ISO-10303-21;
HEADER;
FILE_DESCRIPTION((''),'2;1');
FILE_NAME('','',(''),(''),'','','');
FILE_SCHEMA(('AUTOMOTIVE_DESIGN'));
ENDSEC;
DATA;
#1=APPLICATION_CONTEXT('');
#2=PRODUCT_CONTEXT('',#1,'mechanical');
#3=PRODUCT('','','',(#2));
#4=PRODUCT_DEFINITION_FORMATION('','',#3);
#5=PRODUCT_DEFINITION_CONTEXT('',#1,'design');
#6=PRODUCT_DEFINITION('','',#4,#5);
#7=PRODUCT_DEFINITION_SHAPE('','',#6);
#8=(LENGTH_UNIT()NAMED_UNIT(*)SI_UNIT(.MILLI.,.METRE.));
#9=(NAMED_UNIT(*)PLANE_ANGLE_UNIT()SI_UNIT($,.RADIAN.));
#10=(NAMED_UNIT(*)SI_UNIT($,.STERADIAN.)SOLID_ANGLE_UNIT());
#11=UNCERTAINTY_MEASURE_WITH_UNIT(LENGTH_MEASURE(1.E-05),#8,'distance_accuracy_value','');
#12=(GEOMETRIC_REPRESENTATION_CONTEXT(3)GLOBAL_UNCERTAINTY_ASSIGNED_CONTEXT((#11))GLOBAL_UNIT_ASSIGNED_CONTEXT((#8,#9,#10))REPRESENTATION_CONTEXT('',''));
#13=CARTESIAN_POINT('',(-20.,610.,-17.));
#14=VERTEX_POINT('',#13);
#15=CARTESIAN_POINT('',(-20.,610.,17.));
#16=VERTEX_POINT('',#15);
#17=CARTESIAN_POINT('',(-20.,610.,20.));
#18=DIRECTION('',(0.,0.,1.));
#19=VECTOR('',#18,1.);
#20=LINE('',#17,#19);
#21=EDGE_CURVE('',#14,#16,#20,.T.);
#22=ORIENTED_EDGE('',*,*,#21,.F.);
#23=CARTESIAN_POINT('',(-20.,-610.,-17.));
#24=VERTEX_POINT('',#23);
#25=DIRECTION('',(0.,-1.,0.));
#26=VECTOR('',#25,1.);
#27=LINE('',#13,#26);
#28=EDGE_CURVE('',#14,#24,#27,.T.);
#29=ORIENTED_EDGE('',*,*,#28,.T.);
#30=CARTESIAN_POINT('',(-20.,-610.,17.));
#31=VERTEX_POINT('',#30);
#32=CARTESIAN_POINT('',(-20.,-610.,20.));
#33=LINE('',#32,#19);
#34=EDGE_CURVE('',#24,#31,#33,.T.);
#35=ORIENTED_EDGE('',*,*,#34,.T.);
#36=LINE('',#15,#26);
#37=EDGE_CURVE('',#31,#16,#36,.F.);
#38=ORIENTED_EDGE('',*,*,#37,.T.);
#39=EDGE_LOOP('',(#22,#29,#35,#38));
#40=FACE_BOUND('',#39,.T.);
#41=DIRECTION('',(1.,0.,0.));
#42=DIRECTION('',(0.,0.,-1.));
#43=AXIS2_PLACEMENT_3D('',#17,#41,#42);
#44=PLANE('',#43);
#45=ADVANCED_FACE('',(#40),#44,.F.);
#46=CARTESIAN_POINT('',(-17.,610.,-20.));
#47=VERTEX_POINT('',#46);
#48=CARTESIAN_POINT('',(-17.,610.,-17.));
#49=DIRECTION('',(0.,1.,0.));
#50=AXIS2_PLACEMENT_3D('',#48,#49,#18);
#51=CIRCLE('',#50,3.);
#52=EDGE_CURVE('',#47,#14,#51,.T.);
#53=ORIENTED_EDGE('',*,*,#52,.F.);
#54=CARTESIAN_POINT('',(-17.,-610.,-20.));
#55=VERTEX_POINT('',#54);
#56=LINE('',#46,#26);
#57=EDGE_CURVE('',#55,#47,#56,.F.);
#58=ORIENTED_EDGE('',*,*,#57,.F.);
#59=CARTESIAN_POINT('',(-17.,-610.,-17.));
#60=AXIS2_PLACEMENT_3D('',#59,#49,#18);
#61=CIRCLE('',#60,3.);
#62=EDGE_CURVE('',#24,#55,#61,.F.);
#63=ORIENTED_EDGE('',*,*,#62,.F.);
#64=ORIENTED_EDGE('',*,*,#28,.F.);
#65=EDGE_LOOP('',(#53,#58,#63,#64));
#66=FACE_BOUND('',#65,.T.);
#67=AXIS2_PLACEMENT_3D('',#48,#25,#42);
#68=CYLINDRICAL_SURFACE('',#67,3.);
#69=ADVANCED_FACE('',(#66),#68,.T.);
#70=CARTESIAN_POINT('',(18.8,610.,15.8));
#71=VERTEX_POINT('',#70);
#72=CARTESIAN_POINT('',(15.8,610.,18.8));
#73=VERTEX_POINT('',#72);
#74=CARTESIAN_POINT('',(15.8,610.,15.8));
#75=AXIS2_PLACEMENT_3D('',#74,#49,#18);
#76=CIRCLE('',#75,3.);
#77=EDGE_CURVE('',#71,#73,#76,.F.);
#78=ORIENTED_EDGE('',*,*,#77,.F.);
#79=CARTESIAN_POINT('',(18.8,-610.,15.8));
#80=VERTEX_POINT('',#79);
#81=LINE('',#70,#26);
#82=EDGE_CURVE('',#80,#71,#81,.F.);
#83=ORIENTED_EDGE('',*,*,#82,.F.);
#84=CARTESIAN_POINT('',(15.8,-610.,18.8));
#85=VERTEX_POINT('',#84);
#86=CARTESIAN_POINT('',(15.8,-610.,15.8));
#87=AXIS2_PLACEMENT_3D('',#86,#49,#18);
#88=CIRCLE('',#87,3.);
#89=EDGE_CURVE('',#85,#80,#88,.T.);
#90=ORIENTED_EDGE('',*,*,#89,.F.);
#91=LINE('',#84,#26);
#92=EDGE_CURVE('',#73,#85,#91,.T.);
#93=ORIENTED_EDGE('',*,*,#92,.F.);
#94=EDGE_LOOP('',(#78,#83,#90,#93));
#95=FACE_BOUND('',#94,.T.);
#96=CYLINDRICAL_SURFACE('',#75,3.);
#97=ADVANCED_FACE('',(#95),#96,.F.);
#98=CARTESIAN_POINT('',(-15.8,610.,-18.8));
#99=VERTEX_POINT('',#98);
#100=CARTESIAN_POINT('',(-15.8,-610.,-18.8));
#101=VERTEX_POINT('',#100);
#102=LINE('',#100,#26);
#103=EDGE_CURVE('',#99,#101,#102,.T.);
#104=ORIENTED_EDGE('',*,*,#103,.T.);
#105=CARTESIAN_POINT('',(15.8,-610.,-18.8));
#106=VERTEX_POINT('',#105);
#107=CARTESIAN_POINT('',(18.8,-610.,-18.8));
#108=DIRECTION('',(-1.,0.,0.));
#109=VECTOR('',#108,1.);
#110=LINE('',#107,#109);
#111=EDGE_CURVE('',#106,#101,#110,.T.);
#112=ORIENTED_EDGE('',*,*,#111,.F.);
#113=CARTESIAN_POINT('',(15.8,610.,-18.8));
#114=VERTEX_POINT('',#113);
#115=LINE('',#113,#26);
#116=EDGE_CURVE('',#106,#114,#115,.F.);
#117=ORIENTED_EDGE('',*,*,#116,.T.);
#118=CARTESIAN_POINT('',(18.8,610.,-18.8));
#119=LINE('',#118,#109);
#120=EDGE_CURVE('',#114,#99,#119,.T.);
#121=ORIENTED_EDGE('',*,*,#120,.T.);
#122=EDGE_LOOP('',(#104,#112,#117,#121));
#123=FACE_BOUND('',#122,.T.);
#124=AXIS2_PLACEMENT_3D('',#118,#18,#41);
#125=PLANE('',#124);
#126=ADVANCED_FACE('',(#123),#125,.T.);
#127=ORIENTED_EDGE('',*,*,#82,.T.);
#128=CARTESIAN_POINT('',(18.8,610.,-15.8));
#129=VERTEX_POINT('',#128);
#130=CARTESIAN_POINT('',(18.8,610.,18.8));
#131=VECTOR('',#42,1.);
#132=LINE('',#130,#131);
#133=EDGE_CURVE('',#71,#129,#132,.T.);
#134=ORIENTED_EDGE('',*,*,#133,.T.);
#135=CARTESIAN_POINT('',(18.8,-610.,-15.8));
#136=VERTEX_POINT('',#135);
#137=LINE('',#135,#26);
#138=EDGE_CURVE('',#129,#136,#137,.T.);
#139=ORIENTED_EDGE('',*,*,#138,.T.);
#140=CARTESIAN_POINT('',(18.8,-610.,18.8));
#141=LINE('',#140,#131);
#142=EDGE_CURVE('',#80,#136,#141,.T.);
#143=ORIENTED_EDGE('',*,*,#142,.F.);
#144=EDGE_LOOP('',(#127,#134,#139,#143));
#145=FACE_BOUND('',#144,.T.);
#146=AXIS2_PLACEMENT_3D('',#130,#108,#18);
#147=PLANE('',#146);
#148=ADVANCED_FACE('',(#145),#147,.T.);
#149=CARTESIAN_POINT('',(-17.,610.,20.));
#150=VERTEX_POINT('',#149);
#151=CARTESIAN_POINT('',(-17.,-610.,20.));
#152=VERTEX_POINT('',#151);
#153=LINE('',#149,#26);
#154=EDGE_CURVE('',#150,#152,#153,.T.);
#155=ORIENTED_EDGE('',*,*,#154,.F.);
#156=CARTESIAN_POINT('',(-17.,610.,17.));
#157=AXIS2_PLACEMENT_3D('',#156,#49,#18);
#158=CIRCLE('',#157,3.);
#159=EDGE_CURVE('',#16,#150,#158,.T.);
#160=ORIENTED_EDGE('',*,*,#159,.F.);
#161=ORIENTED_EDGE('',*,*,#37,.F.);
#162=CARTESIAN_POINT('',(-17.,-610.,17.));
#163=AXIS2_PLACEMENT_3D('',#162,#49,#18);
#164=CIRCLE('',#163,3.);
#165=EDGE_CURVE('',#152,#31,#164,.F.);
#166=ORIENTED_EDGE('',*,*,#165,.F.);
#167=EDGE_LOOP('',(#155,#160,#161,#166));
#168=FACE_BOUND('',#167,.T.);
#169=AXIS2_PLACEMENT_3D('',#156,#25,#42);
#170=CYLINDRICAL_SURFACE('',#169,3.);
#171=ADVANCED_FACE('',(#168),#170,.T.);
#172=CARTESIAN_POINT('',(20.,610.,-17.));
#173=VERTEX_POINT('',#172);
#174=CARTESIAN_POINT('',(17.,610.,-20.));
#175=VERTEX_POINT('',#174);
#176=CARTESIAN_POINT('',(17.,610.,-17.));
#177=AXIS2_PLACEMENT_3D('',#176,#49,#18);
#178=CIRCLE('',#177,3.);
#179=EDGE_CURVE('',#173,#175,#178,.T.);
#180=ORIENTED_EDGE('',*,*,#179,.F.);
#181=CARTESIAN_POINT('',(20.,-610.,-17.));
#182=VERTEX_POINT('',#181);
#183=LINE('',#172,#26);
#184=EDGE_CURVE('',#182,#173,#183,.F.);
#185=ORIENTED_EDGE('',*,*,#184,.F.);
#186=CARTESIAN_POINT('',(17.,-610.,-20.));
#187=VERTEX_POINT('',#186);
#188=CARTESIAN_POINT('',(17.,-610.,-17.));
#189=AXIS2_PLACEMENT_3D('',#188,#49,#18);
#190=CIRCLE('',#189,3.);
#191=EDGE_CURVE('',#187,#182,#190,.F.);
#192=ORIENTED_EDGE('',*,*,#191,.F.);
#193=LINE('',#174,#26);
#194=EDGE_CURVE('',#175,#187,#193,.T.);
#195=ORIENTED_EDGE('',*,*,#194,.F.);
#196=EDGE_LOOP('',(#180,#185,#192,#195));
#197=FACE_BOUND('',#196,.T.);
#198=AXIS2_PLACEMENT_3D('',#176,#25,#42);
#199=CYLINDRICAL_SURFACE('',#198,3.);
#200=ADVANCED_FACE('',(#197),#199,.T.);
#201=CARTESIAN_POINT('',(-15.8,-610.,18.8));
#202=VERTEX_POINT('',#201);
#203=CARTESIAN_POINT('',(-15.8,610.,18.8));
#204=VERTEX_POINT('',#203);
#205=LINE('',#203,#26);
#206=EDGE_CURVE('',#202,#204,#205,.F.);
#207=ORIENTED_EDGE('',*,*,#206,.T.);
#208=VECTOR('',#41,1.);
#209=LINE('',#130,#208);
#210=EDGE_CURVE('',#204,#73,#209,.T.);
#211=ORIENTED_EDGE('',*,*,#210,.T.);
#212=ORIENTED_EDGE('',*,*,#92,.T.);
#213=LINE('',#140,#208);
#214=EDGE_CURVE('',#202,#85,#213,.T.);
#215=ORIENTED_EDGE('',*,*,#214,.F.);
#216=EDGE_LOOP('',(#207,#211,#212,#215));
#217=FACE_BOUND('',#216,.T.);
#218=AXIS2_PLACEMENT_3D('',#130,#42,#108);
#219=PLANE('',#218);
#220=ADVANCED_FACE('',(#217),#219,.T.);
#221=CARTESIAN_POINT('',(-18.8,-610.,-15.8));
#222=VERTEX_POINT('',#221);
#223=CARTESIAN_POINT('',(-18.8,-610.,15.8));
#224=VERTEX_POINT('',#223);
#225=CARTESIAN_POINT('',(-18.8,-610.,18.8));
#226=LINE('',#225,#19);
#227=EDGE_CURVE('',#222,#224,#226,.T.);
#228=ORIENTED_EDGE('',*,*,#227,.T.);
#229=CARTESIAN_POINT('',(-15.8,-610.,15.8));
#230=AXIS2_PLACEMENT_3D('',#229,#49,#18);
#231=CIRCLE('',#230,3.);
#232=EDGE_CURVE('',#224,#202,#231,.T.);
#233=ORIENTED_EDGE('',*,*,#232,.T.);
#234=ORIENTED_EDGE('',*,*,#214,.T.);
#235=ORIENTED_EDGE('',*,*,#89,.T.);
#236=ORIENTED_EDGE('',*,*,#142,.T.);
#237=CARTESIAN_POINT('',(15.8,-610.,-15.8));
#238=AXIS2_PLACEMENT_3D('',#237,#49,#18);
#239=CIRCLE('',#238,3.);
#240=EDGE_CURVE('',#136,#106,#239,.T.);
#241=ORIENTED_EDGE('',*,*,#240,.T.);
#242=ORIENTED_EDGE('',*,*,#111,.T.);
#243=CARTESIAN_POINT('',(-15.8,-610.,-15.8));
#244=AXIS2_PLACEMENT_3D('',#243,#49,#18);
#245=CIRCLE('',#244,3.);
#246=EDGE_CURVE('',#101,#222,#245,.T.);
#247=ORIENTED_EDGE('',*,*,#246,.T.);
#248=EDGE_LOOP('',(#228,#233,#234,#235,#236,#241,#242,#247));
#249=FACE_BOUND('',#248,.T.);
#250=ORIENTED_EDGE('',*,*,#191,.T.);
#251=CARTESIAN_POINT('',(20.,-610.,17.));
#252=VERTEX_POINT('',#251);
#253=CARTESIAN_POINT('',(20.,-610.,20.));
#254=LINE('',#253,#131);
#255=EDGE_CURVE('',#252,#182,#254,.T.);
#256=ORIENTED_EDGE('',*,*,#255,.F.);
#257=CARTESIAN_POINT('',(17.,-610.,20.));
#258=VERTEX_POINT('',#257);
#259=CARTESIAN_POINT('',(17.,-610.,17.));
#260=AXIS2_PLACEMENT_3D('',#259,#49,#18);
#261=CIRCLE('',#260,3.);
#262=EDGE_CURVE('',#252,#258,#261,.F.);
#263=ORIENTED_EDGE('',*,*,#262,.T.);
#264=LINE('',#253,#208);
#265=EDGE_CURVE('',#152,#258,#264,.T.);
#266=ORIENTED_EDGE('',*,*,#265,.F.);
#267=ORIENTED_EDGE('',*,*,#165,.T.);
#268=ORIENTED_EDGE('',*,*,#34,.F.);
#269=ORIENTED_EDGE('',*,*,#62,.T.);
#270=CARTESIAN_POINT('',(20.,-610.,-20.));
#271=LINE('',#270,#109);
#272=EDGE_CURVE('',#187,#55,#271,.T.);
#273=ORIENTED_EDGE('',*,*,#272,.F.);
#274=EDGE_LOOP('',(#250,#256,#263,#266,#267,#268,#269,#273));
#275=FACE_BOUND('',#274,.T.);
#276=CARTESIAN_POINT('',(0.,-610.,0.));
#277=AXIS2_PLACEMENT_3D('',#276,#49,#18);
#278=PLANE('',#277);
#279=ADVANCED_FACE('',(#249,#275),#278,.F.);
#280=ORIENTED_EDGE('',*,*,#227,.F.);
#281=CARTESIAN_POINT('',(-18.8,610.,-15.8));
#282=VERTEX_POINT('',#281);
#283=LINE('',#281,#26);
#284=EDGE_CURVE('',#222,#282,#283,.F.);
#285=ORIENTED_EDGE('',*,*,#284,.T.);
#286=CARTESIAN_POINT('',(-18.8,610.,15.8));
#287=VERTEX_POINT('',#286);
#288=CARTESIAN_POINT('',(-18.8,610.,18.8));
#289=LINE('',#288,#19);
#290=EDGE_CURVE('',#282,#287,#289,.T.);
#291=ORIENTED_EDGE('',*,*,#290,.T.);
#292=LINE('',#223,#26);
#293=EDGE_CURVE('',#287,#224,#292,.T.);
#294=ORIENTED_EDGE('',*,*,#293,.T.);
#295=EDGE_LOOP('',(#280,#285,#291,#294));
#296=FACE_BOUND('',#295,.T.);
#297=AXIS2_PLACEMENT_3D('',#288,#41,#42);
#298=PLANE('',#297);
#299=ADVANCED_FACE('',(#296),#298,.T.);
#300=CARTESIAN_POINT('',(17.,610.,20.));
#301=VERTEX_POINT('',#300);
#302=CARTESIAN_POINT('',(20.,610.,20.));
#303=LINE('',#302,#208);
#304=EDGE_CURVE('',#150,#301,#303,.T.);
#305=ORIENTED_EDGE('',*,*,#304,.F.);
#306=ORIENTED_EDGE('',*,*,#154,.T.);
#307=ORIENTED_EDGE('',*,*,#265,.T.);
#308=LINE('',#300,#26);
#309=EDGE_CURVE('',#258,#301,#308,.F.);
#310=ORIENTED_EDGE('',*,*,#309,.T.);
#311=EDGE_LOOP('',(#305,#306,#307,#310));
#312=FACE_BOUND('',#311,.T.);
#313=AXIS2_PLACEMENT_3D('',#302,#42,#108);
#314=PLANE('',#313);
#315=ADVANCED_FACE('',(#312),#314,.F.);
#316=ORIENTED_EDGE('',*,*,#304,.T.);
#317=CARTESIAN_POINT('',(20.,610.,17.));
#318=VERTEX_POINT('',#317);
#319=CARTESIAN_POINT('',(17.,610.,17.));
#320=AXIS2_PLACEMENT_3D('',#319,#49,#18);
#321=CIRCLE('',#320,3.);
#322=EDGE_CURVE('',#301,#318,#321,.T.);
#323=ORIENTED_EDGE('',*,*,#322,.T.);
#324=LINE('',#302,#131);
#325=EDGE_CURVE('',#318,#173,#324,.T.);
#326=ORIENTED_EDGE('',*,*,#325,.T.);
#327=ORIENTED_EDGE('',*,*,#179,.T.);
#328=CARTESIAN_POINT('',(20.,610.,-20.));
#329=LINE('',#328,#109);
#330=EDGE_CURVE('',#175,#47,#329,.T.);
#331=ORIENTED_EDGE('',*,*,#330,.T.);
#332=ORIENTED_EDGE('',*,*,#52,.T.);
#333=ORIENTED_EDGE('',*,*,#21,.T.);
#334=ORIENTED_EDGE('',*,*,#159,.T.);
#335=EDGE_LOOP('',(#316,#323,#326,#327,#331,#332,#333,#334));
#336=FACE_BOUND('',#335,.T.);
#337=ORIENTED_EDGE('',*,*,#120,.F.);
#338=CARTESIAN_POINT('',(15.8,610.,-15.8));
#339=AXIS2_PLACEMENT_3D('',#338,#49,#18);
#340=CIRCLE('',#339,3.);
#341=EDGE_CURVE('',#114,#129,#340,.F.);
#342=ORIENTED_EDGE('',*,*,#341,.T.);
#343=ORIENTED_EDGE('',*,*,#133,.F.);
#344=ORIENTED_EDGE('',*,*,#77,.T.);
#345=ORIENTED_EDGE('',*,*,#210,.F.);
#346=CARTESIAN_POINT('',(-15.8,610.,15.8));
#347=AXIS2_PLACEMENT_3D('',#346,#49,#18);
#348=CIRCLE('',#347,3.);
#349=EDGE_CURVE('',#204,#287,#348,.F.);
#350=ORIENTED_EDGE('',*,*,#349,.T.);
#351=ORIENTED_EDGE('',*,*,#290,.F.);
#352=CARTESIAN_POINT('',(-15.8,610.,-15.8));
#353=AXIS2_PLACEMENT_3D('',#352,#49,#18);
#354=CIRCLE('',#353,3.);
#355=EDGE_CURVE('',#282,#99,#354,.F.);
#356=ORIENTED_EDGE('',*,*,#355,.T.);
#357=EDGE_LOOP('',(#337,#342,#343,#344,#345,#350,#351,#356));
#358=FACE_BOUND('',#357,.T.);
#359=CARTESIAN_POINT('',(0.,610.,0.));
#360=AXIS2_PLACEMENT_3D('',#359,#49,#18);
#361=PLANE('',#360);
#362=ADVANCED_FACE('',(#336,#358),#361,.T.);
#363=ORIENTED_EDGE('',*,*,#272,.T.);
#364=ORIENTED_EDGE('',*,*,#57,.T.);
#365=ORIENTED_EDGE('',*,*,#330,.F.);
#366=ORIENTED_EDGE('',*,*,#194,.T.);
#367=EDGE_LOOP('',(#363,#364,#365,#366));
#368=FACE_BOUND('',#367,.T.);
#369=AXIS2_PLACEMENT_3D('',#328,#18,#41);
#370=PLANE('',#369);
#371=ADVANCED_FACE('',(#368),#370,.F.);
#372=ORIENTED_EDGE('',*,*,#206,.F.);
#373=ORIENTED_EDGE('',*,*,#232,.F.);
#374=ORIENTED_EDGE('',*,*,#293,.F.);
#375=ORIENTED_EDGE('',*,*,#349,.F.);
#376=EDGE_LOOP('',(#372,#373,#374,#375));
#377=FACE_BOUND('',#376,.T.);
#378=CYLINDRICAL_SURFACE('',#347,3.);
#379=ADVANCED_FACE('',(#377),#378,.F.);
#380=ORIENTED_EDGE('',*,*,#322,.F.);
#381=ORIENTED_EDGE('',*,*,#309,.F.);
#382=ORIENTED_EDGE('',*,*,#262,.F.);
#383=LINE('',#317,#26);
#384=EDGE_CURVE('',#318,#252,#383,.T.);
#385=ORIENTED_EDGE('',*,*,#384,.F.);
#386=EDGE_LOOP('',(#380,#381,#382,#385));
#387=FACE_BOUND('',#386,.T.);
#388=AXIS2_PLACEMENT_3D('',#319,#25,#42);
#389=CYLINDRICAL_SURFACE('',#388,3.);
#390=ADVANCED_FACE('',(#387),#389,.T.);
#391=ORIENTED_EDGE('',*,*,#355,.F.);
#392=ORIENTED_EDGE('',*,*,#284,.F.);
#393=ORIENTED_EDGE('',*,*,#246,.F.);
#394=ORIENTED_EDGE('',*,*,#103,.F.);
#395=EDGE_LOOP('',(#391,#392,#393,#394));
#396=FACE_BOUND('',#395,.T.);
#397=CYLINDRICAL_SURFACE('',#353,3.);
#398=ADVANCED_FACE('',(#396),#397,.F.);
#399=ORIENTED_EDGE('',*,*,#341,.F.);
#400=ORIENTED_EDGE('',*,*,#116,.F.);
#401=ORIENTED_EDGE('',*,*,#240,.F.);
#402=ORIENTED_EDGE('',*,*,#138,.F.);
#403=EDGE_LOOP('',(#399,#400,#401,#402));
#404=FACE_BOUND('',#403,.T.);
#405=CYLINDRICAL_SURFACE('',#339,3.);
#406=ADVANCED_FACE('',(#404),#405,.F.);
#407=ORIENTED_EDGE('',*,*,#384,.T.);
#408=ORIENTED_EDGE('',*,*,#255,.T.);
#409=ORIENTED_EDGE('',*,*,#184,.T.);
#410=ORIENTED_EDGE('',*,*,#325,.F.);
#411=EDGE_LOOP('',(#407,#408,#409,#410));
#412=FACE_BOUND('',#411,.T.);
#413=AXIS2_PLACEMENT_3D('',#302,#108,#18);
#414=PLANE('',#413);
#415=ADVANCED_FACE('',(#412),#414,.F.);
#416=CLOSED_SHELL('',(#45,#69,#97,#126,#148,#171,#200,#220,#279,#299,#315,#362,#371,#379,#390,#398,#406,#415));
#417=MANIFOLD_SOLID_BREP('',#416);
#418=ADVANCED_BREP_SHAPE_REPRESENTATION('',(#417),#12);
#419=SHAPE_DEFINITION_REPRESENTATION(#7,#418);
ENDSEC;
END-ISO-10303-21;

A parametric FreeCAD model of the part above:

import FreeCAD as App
import Part
import Sketcher
from FreeCAD import Vector
Q = App.Units.Quantity


def edges_at(feature, points):
    """Names of the edges that pass closest to the given points."""
    edges = feature.Shape.Edges
    near = lambda p: min(range(len(edges)), key=lambda i: edges[i].distToShape(Part.Vertex(*p))[0])
    return sorted({f"Edge{near(p) + 1}" for p in points})

doc = App.newDocument("Part")
params = doc.addObject("Spreadsheet::Sheet", "Params")
for row, (alias, value) in enumerate([
    ("sketch1_width", "40 mm"),
    ("sketch1_width2", "37.6 mm"),
    ("pad1_length", "1220 mm"),
    ("fillet_radius", "3 mm"),
], start=1):
    params.set(f"A{row}", alias)
    params.set(f"B{row}", "=" + value)
    params.setAlias(f"B{row}", alias)

body = doc.addObject("PartDesign::Body", "Body")

sketch1 = body.newObject("Sketcher::SketchObject", "Sketch")
sketch1.AttachmentSupport = (doc.getObject("XZ_Plane"), [""])
sketch1.MapMode = "FlatFace"
sketch1.addGeometry([
    Part.LineSegment(Vector(-20, -20, 0), Vector(-20, 20, 0)),
    Part.LineSegment(Vector(-20, 20, 0), Vector(20, 20, 0)),
    Part.LineSegment(Vector(20, 20, 0), Vector(20, -20, 0)),
    Part.LineSegment(Vector(20, -20, 0), Vector(-20, -20, 0)),
    Part.LineSegment(Vector(18.8, 18.8, 0), Vector(-18.8, 18.8, 0)),
    Part.LineSegment(Vector(-18.8, 18.8, 0), Vector(-18.8, -18.8, 0)),
    Part.LineSegment(Vector(-18.8, -18.8, 0), Vector(18.8, -18.8, 0)),
    Part.LineSegment(Vector(18.8, -18.8, 0), Vector(18.8, 18.8, 0)),
], False)
sketch1.addConstraint([
    Sketcher.Constraint("Coincident", 0, 2, 1, 1),
    Sketcher.Constraint("Coincident", 1, 2, 2, 1),
    Sketcher.Constraint("Coincident", 2, 2, 3, 1),
    Sketcher.Constraint("Coincident", 3, 2, 0, 1),
    Sketcher.Constraint("Coincident", 4, 2, 5, 1),
    Sketcher.Constraint("Coincident", 5, 2, 6, 1),
    Sketcher.Constraint("Coincident", 6, 2, 7, 1),
    Sketcher.Constraint("Coincident", 7, 2, 4, 1),
    Sketcher.Constraint("Vertical", 0),
    Sketcher.Constraint("Horizontal", 1),
    Sketcher.Constraint("Vertical", 2),
    Sketcher.Constraint("Horizontal", 3),
    Sketcher.Constraint("Horizontal", 4),
    Sketcher.Constraint("Vertical", 5),
    Sketcher.Constraint("Horizontal", 6),
    Sketcher.Constraint("Vertical", 7),
    Sketcher.Constraint("Symmetric", 0, 2, 2, 2, -1, 1),
    Sketcher.Constraint("Symmetric", 4, 2, 6, 2, -1, 1),
    Sketcher.Constraint("Equal", 3, 0),
    Sketcher.Constraint("Equal", 6, 5),
    Sketcher.Constraint("DistanceX", 1, 1, 1, 2, Q("40 mm")),
    Sketcher.Constraint("DistanceX", 4, 2, 4, 1, Q("37.6 mm")),
])
sketch1.setExpression("Constraints[20]", "Params.sketch1_width")
sketch1.setExpression("Constraints[21]", "Params.sketch1_width2")
pad1 = body.newObject("PartDesign::Pad", "Pad")
pad1.Profile = sketch1
pad1.setExpression("Length", "Params.pad1_length")
pad1.Midplane = True
doc.recompute()

fillet = body.newObject("PartDesign::Fillet", "Fillet")
fillet.Base = (pad1, edges_at(pad1, [
    (-18.8, 0, 18.8),
    (18.8, 0, 18.8),
    (18.8, 0, -18.8),
    (-18.8, 0, -18.8),
    (-20, 0, -20),
    (20, 0, -20),
    (20, 0, 20),
    (-20, 0, 20),
]))
fillet.setExpression("Radius", "Params.fillet_radius")

doc.recompute()
